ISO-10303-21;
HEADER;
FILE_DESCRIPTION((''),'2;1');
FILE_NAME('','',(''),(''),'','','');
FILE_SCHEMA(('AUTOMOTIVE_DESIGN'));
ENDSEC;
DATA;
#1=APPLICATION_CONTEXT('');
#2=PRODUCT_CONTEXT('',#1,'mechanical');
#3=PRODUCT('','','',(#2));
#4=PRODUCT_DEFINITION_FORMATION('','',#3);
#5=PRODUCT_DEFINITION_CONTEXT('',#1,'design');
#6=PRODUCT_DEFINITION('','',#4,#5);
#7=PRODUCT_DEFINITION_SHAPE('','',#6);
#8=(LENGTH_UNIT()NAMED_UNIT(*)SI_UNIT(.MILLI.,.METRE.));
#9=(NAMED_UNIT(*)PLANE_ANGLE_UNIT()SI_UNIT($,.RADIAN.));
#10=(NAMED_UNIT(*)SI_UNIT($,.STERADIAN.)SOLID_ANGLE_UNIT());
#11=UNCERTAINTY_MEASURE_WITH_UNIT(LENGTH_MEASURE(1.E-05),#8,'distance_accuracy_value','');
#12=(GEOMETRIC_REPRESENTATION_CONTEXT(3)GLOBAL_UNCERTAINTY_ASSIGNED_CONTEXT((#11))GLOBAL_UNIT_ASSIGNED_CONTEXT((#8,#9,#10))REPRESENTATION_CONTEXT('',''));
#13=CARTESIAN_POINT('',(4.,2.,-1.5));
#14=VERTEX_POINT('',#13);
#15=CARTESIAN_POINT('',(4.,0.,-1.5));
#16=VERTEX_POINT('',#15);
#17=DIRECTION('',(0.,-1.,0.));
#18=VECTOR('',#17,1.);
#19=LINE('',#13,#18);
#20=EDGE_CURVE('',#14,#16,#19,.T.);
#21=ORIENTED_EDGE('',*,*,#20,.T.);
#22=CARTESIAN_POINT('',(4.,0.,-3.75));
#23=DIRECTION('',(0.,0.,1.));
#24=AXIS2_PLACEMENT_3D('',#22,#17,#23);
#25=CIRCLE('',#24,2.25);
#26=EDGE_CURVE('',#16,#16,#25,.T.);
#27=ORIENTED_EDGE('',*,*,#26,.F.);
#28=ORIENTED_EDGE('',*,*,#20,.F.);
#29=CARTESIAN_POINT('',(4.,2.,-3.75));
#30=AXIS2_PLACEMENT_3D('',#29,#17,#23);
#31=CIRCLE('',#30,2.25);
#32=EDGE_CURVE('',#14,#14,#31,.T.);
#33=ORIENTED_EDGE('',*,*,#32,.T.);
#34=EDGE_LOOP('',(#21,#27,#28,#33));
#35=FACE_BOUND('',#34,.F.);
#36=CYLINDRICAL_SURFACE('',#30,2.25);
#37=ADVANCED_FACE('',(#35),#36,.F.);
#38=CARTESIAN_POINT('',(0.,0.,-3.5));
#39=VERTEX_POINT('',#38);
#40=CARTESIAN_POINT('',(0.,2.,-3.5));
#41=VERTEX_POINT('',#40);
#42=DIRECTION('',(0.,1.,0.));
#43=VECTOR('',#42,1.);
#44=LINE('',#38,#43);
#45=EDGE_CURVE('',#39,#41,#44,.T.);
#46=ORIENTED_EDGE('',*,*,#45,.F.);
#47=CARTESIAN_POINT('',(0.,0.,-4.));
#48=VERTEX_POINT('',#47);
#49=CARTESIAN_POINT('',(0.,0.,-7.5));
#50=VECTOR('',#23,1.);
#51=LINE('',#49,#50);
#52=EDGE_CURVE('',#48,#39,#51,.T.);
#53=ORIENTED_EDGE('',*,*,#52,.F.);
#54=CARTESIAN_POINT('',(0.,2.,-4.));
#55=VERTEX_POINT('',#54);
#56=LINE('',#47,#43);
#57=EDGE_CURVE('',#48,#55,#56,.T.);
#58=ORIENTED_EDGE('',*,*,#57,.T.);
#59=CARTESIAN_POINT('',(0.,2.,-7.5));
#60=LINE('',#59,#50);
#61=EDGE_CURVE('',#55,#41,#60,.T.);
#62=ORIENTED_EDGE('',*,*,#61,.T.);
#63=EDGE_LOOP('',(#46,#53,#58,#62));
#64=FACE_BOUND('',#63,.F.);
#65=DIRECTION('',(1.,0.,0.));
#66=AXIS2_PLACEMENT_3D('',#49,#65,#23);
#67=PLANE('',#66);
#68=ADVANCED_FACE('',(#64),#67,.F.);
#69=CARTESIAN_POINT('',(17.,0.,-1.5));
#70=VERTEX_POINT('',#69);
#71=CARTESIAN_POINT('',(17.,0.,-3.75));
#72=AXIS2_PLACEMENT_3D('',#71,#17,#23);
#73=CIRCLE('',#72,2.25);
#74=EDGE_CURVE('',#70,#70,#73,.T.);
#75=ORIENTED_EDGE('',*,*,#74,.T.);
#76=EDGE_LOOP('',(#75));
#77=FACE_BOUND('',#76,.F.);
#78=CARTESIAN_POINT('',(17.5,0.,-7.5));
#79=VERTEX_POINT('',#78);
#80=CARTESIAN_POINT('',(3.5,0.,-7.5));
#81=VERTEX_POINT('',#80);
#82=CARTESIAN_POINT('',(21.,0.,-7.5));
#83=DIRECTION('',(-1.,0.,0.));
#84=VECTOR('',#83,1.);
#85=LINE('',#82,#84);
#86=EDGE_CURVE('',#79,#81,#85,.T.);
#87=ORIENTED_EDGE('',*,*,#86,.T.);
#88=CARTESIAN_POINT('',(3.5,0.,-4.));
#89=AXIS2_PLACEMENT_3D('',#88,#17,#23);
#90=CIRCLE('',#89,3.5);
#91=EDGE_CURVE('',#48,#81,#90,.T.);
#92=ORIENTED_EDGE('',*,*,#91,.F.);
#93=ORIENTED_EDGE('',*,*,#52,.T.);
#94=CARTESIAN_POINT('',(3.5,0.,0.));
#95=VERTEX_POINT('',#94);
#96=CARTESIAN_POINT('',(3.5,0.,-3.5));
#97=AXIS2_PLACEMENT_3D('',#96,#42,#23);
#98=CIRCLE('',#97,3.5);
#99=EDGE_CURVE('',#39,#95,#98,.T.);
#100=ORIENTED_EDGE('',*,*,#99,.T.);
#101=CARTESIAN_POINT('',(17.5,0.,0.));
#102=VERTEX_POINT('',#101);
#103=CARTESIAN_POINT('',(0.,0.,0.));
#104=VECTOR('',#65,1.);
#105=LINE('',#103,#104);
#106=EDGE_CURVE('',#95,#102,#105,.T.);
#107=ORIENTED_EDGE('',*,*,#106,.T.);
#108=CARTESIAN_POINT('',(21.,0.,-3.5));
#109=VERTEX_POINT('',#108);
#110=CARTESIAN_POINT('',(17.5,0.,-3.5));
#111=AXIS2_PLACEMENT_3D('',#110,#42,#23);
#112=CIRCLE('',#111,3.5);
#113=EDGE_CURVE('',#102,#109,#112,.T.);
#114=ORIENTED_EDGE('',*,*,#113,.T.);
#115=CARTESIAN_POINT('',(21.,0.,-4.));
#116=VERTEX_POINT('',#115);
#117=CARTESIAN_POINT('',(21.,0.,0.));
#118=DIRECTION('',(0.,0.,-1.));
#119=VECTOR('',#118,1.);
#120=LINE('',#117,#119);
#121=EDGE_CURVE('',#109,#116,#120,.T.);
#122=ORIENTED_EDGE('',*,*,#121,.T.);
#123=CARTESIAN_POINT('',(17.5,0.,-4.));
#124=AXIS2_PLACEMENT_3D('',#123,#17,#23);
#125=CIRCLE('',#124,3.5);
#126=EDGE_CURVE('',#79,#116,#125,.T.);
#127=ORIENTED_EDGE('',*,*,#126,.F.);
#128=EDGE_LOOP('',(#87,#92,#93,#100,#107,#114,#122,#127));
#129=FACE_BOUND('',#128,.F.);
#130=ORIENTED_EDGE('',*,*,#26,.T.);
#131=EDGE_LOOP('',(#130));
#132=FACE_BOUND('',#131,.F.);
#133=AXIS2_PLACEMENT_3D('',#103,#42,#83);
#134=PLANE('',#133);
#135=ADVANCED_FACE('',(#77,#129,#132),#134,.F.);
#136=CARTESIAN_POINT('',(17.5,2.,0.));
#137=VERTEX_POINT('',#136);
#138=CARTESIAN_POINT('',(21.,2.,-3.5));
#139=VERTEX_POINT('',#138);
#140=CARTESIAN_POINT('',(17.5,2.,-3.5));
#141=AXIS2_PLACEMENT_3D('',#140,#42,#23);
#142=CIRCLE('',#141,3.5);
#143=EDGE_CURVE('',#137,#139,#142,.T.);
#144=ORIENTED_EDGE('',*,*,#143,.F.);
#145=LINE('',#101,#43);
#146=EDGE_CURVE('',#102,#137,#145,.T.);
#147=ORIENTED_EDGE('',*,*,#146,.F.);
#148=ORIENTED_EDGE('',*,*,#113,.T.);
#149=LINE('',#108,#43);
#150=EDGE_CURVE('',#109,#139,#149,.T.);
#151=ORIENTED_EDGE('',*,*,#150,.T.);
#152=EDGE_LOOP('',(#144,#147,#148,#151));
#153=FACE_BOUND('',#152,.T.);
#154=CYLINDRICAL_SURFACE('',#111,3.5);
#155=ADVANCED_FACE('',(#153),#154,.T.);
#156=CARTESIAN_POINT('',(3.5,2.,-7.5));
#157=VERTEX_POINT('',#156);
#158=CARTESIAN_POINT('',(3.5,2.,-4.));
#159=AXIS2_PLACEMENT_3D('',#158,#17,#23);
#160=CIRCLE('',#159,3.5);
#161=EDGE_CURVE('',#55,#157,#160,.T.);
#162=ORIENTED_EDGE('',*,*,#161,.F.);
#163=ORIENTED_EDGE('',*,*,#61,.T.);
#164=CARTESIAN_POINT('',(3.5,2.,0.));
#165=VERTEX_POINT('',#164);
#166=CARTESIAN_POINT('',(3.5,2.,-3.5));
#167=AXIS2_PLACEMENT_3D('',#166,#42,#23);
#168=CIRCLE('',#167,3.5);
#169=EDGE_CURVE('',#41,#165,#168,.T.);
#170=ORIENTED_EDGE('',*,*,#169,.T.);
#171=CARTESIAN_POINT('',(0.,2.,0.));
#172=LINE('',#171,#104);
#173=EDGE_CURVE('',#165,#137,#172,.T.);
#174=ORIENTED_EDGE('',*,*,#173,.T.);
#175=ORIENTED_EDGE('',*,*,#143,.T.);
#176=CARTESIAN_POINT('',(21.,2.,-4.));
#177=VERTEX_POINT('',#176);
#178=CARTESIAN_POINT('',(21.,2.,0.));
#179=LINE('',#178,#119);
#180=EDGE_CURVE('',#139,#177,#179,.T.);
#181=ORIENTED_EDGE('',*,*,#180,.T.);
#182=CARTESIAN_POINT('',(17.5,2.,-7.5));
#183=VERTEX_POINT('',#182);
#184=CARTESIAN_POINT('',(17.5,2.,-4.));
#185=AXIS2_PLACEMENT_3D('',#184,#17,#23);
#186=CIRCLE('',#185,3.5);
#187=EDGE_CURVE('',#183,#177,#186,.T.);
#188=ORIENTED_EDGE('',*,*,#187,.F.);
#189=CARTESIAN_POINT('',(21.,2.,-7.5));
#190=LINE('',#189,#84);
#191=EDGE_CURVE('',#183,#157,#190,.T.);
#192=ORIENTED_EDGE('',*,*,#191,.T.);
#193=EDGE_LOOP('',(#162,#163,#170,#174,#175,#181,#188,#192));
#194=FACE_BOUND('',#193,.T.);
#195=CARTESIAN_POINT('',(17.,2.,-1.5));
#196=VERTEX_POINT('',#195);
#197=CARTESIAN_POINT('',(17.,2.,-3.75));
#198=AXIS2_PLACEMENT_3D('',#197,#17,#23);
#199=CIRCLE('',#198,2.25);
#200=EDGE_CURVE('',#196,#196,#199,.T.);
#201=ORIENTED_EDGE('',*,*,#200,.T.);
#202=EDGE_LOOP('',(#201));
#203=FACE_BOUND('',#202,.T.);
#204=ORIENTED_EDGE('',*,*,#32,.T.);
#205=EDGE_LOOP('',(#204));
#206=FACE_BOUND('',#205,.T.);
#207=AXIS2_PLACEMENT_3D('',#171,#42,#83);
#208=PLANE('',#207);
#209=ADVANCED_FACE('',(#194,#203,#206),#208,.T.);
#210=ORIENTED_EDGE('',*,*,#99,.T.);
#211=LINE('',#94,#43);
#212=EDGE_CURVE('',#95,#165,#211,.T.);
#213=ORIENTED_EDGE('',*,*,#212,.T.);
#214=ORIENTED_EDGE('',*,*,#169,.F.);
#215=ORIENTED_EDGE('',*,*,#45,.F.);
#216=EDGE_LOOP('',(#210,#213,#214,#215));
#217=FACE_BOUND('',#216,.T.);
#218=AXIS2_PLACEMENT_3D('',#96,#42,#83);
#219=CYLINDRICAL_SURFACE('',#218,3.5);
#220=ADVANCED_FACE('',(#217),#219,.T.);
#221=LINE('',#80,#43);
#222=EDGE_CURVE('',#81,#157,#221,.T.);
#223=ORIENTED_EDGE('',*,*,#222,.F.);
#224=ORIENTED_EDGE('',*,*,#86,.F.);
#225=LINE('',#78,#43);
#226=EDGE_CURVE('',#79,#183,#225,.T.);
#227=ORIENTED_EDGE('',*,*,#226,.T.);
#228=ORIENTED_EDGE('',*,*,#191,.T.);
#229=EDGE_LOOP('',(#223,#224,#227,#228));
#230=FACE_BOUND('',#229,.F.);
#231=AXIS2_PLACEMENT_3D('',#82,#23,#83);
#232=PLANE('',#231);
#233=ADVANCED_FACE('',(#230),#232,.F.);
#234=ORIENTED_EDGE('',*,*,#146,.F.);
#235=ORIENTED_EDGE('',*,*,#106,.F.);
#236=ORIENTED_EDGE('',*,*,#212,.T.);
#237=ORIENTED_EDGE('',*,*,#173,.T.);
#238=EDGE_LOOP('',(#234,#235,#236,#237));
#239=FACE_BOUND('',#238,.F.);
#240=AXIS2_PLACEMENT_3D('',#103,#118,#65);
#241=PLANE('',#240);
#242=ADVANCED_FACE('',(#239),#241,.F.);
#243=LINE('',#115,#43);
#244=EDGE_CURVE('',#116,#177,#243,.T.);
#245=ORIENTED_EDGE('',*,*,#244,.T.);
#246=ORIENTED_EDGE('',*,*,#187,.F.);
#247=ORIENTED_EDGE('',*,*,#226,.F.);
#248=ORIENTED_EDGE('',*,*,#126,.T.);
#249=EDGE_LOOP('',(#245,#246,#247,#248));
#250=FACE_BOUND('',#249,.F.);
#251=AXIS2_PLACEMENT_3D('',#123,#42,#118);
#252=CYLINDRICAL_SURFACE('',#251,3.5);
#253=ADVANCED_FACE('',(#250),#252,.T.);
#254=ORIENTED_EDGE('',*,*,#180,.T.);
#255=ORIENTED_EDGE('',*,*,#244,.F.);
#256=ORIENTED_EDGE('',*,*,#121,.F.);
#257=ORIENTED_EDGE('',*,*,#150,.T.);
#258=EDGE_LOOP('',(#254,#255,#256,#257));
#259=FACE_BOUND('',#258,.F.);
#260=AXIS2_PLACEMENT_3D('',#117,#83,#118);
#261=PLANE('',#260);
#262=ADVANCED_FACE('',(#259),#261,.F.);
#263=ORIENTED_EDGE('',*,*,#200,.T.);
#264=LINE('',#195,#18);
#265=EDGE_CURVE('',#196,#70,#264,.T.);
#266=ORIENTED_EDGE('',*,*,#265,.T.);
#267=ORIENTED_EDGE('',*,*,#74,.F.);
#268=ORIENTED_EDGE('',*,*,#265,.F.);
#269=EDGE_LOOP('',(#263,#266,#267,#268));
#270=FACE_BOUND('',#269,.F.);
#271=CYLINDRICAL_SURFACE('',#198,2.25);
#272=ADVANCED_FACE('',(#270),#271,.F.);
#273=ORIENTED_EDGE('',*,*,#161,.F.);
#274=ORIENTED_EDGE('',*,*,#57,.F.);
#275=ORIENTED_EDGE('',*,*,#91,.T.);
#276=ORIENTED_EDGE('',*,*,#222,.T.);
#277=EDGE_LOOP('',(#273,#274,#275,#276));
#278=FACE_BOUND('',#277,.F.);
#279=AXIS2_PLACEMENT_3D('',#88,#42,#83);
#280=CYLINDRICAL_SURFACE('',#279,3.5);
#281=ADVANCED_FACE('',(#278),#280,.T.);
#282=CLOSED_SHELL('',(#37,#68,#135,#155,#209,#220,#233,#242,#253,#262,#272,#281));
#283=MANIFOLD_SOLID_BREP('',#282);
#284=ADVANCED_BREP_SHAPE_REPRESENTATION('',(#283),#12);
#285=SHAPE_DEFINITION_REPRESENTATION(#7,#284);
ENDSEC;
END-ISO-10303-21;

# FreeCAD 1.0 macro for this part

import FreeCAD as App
import Part
import Sketcher

V = App.Vector
Q = App.Units.Quantity


def edges_at(feature, points):
    """Names of the edges that pass closest to the given points."""
    edges = feature.Shape.Edges
    near = lambda p: min(range(len(edges)), key=lambda i: edges[i].distToShape(Part.Vertex(*p))[0])
    return sorted({f"Edge{near(p) + 1}" for p in points})

doc = App.newDocument("Part")
body = doc.addObject("PartDesign::Body", "Body")

# Sketch on XZ plane
sketch1 = doc.addObject("Sketcher::SketchObject", "Sketch")
body.addObject(sketch1)
sketch1.AttachmentSupport = (doc.XZ_Plane, [""])
sketch1.MapMode = "FlatFace"
sketch1.addGeometry([
    Part.LineSegment(V(0, -7.5, 0), V(0, 0, 0)),
    Part.LineSegment(V(0, 0, 0), V(21, 0, 0)),
    Part.LineSegment(V(21, 0, 0), V(21, -7.5, 0)),
    Part.LineSegment(V(21, -7.5, 0), V(0, -7.5, 0)),
], False)
sketch1.addConstraint([
    Sketcher.Constraint("Coincident", 0, 2, 1, 1),
    Sketcher.Constraint("Coincident", 1, 2, 2, 1),
    Sketcher.Constraint("Coincident", 2, 2, 3, 1),
    Sketcher.Constraint("Coincident", 3, 2, 0, 1),
    Sketcher.Constraint("Vertical", 0),
    Sketcher.Constraint("Horizontal", 1),
    Sketcher.Constraint("Vertical", 2),
    Sketcher.Constraint("Horizontal", 3),
    Sketcher.Constraint("Coincident", 0, 2, -1, 1),
    Sketcher.Constraint("DistanceX", 1, 1, 1, 2, Q("21 mm")),
    Sketcher.Constraint("DistanceY", 0, 1, 0, 2, Q("7.5 mm")),
])
pad1 = doc.addObject("PartDesign::Pad", "Pad")
body.addObject(pad1)
pad1.Profile = sketch1
pad1.Length = 2
pad1.Reversed = True

# Sketch on XZ plane
sketch2 = doc.addObject("Sketcher::SketchObject", "Sketch001")
body.addObject(sketch2)
sketch2.AttachmentSupport = (doc.XZ_Plane, [""])
sketch2.MapMode = "FlatFace"
sketch2.AttachmentOffset = App.Placement(V(0, 0, -2), App.Rotation())
sketch2.addGeometry([
    Part.Circle(V(4, -3.75, 0), V(0, 0, 1), 2.25),
    Part.Circle(V(17, -3.75, 0), V(0, 0, 1), 2.25),
], False)
sketch2.addConstraint([
    Sketcher.Constraint("Equal", 0, 1),
    Sketcher.Constraint("Horizontal", 0, 3, 1, 3),
    Sketcher.Constraint("Diameter", 0, Q("4.5 mm")),
    Sketcher.Constraint("DistanceX", -1, 1, 0, 3, Q("4 mm")),
    Sketcher.Constraint("DistanceX", -1, 1, 1, 3, Q("17 mm")),
    Sketcher.Constraint("DistanceY", 0, 3, -1, 1, Q("3.75 mm")),
])
doc.recompute()
hole = doc.addObject("PartDesign::Hole", "Hole")
body.addObject(hole)
hole.Profile = sketch2
hole.ThreadType = "None"
hole.Diameter = 4.5
hole.DepthType = "ThroughAll"
hole.Reversed = True
doc.recompute()

fillet = doc.addObject("PartDesign::Fillet", "Fillet")
body.addObject(fillet)
fillet.Base = (hole, edges_at(hole, [
    (21, 1, 0),
    (21, 1, -7.5),
    (0, 1, 0),
    (0, 1, -7.5),
]))
fillet.Radius = 3.5

doc.recompute()
